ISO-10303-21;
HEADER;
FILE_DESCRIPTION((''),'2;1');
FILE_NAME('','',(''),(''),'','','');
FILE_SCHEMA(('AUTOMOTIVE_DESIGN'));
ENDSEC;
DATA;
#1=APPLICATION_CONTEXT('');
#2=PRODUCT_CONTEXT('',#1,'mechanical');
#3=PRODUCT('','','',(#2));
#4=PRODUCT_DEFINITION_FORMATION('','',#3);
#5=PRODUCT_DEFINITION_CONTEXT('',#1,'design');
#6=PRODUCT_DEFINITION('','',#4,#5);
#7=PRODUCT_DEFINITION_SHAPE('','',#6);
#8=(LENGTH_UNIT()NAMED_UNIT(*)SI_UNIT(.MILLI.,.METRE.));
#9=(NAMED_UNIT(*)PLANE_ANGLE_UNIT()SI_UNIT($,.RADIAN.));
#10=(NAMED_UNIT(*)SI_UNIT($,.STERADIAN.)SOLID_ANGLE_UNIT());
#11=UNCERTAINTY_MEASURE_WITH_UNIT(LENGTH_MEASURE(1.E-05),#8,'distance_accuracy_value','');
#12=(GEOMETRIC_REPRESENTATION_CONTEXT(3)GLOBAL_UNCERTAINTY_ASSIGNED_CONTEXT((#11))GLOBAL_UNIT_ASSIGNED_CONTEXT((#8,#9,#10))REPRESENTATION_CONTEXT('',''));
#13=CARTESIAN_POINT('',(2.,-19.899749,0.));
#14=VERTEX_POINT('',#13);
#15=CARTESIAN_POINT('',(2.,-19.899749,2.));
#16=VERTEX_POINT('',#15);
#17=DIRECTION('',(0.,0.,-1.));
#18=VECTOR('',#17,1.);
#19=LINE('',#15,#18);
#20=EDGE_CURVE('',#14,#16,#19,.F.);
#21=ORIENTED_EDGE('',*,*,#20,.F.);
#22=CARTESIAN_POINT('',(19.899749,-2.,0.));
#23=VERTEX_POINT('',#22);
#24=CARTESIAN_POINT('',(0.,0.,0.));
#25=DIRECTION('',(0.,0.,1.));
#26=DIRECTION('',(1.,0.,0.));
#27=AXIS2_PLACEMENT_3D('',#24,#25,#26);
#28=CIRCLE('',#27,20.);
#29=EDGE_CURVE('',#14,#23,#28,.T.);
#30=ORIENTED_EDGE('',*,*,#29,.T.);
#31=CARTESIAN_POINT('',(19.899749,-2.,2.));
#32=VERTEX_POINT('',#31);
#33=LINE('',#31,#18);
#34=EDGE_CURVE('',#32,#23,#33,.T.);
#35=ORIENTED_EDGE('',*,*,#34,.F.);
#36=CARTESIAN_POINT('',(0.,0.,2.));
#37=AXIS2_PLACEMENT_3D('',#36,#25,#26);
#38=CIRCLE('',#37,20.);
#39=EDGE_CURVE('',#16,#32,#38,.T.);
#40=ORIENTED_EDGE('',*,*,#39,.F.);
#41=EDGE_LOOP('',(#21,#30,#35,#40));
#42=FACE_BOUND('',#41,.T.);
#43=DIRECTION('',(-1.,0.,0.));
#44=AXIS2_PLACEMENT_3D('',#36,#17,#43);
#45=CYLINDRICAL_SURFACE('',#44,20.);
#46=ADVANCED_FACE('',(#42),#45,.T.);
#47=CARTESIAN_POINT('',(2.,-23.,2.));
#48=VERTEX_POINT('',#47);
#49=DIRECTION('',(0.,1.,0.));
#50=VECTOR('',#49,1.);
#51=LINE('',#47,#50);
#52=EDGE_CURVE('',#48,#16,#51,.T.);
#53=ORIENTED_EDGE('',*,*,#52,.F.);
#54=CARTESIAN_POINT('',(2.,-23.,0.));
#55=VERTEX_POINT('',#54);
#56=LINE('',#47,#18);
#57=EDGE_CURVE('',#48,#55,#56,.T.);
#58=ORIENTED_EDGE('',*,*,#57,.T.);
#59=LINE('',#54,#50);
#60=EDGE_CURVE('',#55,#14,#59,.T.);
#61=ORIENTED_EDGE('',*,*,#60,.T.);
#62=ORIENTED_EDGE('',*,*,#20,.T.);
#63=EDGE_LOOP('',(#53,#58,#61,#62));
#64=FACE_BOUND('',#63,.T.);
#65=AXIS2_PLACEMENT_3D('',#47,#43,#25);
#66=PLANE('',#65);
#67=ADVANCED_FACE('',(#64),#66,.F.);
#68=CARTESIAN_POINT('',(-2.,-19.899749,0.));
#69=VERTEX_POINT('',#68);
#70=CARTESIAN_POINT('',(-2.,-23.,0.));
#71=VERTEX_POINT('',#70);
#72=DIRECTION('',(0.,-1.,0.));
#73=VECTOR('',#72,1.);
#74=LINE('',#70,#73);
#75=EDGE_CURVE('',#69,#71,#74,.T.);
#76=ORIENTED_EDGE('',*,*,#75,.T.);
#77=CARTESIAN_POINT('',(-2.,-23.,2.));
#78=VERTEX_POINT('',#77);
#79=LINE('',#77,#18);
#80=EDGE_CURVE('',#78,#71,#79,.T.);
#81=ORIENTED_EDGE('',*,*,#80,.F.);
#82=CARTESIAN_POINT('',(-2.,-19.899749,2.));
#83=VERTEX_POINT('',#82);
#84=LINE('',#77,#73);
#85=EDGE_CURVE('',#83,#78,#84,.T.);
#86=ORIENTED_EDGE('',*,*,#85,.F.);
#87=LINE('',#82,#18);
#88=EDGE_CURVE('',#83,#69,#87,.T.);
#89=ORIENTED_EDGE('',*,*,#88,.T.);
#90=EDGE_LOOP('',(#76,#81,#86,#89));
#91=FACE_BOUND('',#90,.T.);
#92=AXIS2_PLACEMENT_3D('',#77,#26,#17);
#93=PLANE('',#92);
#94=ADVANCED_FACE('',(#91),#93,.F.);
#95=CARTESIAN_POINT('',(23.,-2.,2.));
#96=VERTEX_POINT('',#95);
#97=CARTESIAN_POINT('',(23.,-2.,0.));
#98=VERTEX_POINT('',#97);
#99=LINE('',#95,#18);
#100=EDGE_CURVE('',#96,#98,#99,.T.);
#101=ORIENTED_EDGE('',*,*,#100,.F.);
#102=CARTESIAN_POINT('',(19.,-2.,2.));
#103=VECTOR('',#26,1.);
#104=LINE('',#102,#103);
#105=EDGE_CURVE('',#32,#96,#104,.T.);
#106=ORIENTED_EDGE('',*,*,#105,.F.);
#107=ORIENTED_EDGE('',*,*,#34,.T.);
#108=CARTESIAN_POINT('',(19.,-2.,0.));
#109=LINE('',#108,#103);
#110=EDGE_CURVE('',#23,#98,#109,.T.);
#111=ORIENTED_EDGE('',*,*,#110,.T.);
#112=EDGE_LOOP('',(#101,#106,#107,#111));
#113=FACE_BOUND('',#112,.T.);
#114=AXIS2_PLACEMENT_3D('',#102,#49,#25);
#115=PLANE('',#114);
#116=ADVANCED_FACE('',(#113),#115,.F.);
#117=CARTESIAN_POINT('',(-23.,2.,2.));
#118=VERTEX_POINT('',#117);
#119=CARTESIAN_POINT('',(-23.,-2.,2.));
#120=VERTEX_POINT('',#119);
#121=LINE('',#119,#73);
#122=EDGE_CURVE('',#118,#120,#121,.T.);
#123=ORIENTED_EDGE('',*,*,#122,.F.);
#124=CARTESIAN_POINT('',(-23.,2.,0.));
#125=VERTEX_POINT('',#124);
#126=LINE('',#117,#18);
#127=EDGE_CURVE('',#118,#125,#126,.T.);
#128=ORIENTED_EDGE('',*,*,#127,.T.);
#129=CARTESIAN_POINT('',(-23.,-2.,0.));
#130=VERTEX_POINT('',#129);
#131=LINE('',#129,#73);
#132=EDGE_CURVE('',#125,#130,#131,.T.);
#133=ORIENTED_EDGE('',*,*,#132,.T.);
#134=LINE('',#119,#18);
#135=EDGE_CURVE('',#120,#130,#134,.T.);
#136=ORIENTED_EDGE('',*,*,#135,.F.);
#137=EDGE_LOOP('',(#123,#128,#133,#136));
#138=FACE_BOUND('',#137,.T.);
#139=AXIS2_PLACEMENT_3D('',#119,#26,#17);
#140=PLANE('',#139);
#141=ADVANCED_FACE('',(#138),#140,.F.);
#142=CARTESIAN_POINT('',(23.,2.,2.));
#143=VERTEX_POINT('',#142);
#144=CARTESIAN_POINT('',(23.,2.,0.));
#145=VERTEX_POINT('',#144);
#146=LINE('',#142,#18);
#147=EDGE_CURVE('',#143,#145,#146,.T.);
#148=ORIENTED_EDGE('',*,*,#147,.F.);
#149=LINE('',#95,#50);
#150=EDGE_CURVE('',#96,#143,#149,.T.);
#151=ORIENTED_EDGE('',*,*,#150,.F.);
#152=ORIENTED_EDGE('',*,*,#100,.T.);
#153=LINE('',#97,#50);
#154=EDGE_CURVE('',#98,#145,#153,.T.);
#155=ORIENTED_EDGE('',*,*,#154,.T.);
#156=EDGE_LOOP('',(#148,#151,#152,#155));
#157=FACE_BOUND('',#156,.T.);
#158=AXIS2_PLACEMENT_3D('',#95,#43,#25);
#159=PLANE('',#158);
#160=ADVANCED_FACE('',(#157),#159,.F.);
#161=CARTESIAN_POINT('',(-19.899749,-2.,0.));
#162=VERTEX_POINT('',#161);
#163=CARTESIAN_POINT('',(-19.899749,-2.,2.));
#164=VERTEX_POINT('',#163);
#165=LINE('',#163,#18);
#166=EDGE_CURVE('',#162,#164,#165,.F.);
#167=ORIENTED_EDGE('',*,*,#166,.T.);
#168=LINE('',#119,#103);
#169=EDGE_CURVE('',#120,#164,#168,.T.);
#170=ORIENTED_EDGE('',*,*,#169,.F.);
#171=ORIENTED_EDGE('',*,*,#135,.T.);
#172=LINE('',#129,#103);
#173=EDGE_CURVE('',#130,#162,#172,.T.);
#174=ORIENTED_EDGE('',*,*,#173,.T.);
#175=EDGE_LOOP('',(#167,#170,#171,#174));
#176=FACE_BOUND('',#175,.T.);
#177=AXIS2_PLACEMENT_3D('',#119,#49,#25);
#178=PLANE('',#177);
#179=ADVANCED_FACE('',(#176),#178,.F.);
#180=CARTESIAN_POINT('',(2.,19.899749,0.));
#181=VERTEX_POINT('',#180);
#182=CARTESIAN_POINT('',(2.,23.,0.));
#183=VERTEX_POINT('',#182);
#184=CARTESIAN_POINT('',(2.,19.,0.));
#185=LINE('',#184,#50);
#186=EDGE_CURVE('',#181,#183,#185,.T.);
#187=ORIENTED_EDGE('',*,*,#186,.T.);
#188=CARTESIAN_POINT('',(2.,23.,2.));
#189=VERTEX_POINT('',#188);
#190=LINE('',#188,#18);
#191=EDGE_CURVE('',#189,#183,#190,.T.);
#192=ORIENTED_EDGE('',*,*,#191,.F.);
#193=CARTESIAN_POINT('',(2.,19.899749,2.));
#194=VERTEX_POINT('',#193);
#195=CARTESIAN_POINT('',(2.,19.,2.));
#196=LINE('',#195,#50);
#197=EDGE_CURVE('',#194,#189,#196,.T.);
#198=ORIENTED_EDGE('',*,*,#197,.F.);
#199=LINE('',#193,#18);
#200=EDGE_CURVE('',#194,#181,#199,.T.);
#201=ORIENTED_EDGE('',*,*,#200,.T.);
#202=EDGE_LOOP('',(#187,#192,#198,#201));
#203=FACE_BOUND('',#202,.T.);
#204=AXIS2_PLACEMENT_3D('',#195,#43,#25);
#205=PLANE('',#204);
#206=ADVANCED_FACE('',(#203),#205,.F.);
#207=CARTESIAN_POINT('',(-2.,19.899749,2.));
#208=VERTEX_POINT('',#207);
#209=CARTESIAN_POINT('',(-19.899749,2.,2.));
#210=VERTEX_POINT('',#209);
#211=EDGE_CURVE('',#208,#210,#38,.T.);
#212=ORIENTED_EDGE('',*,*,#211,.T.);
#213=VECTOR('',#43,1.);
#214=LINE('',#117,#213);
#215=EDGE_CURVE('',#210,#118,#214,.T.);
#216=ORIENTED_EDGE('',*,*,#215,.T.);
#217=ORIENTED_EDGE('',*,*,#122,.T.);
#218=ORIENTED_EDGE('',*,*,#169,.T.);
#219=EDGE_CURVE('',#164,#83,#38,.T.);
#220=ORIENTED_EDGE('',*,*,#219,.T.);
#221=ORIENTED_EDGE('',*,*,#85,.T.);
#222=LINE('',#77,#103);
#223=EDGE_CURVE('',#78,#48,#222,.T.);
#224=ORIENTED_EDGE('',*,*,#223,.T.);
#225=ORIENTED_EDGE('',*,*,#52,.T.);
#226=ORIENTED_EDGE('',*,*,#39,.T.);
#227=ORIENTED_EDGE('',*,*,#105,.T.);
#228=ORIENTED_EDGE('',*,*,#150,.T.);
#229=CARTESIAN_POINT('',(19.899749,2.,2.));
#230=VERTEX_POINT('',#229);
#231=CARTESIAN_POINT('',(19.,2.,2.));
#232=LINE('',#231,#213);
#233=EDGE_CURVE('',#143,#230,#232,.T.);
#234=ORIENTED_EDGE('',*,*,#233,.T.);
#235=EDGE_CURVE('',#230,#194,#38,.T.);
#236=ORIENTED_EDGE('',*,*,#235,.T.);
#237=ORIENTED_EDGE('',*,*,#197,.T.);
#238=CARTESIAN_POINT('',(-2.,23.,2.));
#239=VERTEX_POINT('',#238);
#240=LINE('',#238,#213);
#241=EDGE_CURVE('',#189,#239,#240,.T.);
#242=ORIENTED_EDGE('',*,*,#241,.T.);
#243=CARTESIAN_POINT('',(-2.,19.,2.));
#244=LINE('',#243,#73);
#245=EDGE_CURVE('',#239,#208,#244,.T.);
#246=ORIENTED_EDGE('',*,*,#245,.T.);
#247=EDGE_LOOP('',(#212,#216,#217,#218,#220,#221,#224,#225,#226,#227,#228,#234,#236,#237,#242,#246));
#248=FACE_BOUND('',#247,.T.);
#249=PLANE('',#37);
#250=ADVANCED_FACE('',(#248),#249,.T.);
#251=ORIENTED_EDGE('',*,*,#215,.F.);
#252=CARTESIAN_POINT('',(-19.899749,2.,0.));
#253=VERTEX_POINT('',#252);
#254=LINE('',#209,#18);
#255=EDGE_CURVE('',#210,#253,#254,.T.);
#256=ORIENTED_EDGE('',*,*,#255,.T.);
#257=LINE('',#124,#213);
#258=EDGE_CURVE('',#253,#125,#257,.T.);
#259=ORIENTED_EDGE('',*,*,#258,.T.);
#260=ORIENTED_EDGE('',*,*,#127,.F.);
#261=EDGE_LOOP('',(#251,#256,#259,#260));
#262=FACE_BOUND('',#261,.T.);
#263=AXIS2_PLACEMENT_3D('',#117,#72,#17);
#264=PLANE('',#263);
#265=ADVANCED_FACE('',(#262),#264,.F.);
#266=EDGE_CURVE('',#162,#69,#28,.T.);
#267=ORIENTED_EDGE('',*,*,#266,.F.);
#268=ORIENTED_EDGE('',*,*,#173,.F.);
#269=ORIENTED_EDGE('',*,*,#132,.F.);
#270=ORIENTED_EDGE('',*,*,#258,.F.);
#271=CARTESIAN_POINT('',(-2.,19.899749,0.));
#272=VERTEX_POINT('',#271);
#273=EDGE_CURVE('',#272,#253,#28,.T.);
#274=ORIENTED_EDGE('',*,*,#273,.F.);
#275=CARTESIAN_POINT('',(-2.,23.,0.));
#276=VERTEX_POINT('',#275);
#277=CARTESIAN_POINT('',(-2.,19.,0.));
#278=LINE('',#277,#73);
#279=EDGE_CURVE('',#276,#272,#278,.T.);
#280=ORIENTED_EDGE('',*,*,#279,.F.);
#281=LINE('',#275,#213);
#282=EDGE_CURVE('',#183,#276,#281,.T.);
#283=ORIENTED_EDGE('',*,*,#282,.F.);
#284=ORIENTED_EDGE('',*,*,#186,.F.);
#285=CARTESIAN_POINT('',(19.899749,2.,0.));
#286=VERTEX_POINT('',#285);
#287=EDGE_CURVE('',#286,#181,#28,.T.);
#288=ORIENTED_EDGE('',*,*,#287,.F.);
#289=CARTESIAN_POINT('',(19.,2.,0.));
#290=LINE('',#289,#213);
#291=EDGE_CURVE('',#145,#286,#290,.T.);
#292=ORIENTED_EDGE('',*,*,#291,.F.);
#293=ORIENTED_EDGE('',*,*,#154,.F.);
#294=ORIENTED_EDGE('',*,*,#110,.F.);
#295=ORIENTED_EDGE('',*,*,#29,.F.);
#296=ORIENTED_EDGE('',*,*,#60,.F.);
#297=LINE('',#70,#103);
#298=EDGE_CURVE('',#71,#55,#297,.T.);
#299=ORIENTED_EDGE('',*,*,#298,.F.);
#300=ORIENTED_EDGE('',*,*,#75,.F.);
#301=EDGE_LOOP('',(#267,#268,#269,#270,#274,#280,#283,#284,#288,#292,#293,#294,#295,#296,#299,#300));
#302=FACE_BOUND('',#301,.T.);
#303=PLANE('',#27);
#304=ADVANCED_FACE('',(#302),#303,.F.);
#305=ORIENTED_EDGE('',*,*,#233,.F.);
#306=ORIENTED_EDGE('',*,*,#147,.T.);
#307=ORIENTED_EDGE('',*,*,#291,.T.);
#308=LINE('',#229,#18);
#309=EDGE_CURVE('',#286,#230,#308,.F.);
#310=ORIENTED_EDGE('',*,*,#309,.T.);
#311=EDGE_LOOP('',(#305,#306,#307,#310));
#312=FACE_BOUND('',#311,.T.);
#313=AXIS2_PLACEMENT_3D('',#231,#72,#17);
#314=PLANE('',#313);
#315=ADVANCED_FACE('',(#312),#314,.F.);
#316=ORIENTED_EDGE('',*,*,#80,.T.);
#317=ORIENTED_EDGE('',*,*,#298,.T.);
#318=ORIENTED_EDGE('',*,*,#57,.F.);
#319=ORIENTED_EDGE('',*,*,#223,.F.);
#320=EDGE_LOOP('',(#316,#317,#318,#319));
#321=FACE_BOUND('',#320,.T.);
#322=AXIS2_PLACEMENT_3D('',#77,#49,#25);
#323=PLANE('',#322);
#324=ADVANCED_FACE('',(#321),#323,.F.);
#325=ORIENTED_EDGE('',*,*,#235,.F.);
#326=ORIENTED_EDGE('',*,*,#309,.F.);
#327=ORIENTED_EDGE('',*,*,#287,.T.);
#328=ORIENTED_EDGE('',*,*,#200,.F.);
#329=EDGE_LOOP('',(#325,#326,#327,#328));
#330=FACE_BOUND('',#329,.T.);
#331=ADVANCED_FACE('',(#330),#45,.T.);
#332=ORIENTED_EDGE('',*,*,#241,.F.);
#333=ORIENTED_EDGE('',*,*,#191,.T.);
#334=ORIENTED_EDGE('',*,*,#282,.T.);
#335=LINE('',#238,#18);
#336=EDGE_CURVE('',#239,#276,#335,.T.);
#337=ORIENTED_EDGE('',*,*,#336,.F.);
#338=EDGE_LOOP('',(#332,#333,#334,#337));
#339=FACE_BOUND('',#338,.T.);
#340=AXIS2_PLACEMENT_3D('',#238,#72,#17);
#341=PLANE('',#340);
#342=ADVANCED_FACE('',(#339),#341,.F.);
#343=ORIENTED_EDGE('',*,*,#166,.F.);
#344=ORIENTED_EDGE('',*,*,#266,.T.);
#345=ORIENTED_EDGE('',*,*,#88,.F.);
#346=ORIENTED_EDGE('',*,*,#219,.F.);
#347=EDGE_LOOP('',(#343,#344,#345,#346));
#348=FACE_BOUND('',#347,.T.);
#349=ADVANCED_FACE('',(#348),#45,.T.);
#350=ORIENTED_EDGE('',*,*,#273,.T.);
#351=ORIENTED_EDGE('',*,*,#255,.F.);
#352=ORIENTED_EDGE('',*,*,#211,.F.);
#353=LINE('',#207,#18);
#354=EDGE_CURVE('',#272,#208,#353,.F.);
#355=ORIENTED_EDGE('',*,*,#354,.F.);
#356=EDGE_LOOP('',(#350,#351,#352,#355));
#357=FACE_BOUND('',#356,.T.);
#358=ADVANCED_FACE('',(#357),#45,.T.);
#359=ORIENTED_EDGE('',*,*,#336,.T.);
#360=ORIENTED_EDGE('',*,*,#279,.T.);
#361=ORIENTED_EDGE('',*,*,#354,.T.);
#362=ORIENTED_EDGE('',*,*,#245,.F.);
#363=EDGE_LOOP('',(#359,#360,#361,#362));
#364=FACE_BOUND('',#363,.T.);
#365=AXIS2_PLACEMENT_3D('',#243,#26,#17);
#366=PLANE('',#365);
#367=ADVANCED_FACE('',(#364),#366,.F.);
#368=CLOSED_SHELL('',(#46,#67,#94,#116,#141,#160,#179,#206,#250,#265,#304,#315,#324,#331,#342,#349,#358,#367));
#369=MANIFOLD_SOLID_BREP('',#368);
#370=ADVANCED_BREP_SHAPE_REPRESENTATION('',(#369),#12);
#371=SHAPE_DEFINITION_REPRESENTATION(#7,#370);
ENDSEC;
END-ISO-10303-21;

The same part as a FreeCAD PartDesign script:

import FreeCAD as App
import Part
import Sketcher

V = App.Vector

doc = App.newDocument("Part")
params = doc.addObject("Spreadsheet::Sheet", "Params")
for row, (alias, value) in enumerate([
    ("sketch1_diameter", "40 mm"),
    ("pad1_length", "2 mm"),
    ("sketch2_width", "4 mm"),
    ("pad2_length", "2 mm"),
], start=1):
    params.set(f"A{row}", alias)
    params.set(f"B{row}", "=" + value)
    params.setAlias(f"B{row}", alias)

body = doc.addObject("PartDesign::Body", "Body")

# Sketch on XY plane
sketch1 = body.newObject("Sketcher::SketchObject", "Sketch")
sketch1.AttachmentSupport = (doc.getObject("XY_Plane"), [""])
sketch1.MapMode = "FlatFace"
sketch1.addGeometry(Part.Circle(V(0, 0, 0), V(0, 0, 1), 20), False)
sketch1.addConstraint([
    Sketcher.Constraint("Coincident", 0, 3, -1, 1),
    Sketcher.Constraint("Diameter", 0, 40.0),
])
sketch1.setExpression("Constraints[1]", "Params.sketch1_diameter")
pad1 = body.newObject("PartDesign::Pad", "Pad")
pad1.Profile = sketch1
pad1.setExpression("Length", "Params.pad1_length")

# Sketch on XY plane
sketch2 = body.newObject("Sketcher::SketchObject", "Sketch001")
sketch2.AttachmentSupport = (doc.getObject("XY_Plane"), [""])
sketch2.MapMode = "FlatFace"
sketch2.addGeometry([
    Part.LineSegment(V(19, 2, 0), V(19, -2, 0)),  # 0
    Part.LineSegment(V(19, -2, 0), V(23, -2, 0)),  # 1
    Part.LineSegment(V(23, -2, 0), V(23, 2, 0)),  # 2
    Part.LineSegment(V(23, 2, 0), V(19, 2, 0)),  # 3
    Part.LineSegment(V(-2, 23, 0), V(-2, 19, 0)),  # 4
    Part.LineSegment(V(-2, 19, 0), V(2, 19, 0)),  # 5
    Part.LineSegment(V(2, 19, 0), V(2, 23, 0)),  # 6
    Part.LineSegment(V(2, 23, 0), V(-2, 23, 0)),  # 7
    Part.LineSegment(V(-23, 2, 0), V(-23, -2, 0)),  # 8
    Part.LineSegment(V(-23, -2, 0), V(-19, -2, 0)),  # 9
    Part.LineSegment(V(-19, -2, 0), V(-19, 2, 0)),  # 10
    Part.LineSegment(V(-19, 2, 0), V(-23, 2, 0)),  # 11
    Part.LineSegment(V(-2, -19, 0), V(-2, -23, 0)),  # 12
    Part.LineSegment(V(-2, -23, 0), V(2, -23, 0)),  # 13
    Part.LineSegment(V(2, -23, 0), V(2, -19, 0)),  # 14
    Part.LineSegment(V(2, -19, 0), V(-2, -19, 0)),  # 15
], False)
sketch2.addConstraint([
    Sketcher.Constraint("Coincident", 0, 2, 1, 1),
    Sketcher.Constraint("Coincident", 1, 2, 2, 1),
    Sketcher.Constraint("Coincident", 2, 2, 3, 1),
    Sketcher.Constraint("Coincident", 3, 2, 0, 1),
    Sketcher.Constraint("Coincident", 4, 2, 5, 1),
    Sketcher.Constraint("Coincident", 5, 2, 6, 1),
    Sketcher.Constraint("Coincident", 6, 2, 7, 1),
    Sketcher.Constraint("Coincident", 7, 2, 4, 1),
    Sketcher.Constraint("Coincident", 8, 2, 9, 1),
    Sketcher.Constraint("Coincident", 9, 2, 10, 1),
    Sketcher.Constraint("Coincident", 10, 2, 11, 1),
    Sketcher.Constraint("Coincident", 11, 2, 8, 1),
    Sketcher.Constraint("Coincident", 12, 2, 13, 1),
    Sketcher.Constraint("Coincident", 13, 2, 14, 1),
    Sketcher.Constraint("Coincident", 14, 2, 15, 1),
    Sketcher.Constraint("Coincident", 15, 2, 12, 1),
    Sketcher.Constraint("Vertical", 0),
    Sketcher.Constraint("Horizontal", 1),
    Sketcher.Constraint("Vertical", 2),
    Sketcher.Constraint("Horizontal", 3),
    Sketcher.Constraint("Vertical", 4),
    Sketcher.Constraint("Horizontal", 5),
    Sketcher.Constraint("Vertical", 6),
    Sketcher.Constraint("Horizontal", 7),
    Sketcher.Constraint("Vertical", 8),
    Sketcher.Constraint("Horizontal", 9),
    Sketcher.Constraint("Vertical", 10),
    Sketcher.Constraint("Horizontal", 11),
    Sketcher.Constraint("Vertical", 12),
    Sketcher.Constraint("Horizontal", 13),
    Sketcher.Constraint("Vertical", 14),
    Sketcher.Constraint("Horizontal", 15),
    Sketcher.Constraint("Symmetric", 2, 2, 8, 2, -1, 1),
    Sketcher.Constraint("Symmetric", 0, 2, 10, 2, -1, 1),
    Sketcher.Constraint("Symmetric", 6, 2, 12, 2, -1, 1),
    Sketcher.Constraint("Symmetric", 4, 2, 14, 2, -1, 1),
    Sketcher.Constraint("Horizontal", 1, 2, 8, 2),
    Sketcher.Constraint("Vertical", 7, 2, 12, 2),
    Sketcher.Constraint("Equal", 3, 5),
    Sketcher.Constraint("Equal", 15, 0),
    Sketcher.Constraint("Equal", 2, 4),
    Sketcher.Constraint("DistanceX", 1, 1, 1, 2, 4.0),
    Sketcher.Constraint("DistanceX", -1, 1, 0, 2, 19.0),
    Sketcher.Constraint("DistanceY", -1, 1, 4, 2, 19.0),
])
sketch2.setExpression("Constraints[41]", "Params.sketch2_width")
pad2 = body.newObject("PartDesign::Pad", "Pad001")
pad2.Profile = sketch2
pad2.setExpression("Length", "Params.pad2_length")

doc.recompute()
